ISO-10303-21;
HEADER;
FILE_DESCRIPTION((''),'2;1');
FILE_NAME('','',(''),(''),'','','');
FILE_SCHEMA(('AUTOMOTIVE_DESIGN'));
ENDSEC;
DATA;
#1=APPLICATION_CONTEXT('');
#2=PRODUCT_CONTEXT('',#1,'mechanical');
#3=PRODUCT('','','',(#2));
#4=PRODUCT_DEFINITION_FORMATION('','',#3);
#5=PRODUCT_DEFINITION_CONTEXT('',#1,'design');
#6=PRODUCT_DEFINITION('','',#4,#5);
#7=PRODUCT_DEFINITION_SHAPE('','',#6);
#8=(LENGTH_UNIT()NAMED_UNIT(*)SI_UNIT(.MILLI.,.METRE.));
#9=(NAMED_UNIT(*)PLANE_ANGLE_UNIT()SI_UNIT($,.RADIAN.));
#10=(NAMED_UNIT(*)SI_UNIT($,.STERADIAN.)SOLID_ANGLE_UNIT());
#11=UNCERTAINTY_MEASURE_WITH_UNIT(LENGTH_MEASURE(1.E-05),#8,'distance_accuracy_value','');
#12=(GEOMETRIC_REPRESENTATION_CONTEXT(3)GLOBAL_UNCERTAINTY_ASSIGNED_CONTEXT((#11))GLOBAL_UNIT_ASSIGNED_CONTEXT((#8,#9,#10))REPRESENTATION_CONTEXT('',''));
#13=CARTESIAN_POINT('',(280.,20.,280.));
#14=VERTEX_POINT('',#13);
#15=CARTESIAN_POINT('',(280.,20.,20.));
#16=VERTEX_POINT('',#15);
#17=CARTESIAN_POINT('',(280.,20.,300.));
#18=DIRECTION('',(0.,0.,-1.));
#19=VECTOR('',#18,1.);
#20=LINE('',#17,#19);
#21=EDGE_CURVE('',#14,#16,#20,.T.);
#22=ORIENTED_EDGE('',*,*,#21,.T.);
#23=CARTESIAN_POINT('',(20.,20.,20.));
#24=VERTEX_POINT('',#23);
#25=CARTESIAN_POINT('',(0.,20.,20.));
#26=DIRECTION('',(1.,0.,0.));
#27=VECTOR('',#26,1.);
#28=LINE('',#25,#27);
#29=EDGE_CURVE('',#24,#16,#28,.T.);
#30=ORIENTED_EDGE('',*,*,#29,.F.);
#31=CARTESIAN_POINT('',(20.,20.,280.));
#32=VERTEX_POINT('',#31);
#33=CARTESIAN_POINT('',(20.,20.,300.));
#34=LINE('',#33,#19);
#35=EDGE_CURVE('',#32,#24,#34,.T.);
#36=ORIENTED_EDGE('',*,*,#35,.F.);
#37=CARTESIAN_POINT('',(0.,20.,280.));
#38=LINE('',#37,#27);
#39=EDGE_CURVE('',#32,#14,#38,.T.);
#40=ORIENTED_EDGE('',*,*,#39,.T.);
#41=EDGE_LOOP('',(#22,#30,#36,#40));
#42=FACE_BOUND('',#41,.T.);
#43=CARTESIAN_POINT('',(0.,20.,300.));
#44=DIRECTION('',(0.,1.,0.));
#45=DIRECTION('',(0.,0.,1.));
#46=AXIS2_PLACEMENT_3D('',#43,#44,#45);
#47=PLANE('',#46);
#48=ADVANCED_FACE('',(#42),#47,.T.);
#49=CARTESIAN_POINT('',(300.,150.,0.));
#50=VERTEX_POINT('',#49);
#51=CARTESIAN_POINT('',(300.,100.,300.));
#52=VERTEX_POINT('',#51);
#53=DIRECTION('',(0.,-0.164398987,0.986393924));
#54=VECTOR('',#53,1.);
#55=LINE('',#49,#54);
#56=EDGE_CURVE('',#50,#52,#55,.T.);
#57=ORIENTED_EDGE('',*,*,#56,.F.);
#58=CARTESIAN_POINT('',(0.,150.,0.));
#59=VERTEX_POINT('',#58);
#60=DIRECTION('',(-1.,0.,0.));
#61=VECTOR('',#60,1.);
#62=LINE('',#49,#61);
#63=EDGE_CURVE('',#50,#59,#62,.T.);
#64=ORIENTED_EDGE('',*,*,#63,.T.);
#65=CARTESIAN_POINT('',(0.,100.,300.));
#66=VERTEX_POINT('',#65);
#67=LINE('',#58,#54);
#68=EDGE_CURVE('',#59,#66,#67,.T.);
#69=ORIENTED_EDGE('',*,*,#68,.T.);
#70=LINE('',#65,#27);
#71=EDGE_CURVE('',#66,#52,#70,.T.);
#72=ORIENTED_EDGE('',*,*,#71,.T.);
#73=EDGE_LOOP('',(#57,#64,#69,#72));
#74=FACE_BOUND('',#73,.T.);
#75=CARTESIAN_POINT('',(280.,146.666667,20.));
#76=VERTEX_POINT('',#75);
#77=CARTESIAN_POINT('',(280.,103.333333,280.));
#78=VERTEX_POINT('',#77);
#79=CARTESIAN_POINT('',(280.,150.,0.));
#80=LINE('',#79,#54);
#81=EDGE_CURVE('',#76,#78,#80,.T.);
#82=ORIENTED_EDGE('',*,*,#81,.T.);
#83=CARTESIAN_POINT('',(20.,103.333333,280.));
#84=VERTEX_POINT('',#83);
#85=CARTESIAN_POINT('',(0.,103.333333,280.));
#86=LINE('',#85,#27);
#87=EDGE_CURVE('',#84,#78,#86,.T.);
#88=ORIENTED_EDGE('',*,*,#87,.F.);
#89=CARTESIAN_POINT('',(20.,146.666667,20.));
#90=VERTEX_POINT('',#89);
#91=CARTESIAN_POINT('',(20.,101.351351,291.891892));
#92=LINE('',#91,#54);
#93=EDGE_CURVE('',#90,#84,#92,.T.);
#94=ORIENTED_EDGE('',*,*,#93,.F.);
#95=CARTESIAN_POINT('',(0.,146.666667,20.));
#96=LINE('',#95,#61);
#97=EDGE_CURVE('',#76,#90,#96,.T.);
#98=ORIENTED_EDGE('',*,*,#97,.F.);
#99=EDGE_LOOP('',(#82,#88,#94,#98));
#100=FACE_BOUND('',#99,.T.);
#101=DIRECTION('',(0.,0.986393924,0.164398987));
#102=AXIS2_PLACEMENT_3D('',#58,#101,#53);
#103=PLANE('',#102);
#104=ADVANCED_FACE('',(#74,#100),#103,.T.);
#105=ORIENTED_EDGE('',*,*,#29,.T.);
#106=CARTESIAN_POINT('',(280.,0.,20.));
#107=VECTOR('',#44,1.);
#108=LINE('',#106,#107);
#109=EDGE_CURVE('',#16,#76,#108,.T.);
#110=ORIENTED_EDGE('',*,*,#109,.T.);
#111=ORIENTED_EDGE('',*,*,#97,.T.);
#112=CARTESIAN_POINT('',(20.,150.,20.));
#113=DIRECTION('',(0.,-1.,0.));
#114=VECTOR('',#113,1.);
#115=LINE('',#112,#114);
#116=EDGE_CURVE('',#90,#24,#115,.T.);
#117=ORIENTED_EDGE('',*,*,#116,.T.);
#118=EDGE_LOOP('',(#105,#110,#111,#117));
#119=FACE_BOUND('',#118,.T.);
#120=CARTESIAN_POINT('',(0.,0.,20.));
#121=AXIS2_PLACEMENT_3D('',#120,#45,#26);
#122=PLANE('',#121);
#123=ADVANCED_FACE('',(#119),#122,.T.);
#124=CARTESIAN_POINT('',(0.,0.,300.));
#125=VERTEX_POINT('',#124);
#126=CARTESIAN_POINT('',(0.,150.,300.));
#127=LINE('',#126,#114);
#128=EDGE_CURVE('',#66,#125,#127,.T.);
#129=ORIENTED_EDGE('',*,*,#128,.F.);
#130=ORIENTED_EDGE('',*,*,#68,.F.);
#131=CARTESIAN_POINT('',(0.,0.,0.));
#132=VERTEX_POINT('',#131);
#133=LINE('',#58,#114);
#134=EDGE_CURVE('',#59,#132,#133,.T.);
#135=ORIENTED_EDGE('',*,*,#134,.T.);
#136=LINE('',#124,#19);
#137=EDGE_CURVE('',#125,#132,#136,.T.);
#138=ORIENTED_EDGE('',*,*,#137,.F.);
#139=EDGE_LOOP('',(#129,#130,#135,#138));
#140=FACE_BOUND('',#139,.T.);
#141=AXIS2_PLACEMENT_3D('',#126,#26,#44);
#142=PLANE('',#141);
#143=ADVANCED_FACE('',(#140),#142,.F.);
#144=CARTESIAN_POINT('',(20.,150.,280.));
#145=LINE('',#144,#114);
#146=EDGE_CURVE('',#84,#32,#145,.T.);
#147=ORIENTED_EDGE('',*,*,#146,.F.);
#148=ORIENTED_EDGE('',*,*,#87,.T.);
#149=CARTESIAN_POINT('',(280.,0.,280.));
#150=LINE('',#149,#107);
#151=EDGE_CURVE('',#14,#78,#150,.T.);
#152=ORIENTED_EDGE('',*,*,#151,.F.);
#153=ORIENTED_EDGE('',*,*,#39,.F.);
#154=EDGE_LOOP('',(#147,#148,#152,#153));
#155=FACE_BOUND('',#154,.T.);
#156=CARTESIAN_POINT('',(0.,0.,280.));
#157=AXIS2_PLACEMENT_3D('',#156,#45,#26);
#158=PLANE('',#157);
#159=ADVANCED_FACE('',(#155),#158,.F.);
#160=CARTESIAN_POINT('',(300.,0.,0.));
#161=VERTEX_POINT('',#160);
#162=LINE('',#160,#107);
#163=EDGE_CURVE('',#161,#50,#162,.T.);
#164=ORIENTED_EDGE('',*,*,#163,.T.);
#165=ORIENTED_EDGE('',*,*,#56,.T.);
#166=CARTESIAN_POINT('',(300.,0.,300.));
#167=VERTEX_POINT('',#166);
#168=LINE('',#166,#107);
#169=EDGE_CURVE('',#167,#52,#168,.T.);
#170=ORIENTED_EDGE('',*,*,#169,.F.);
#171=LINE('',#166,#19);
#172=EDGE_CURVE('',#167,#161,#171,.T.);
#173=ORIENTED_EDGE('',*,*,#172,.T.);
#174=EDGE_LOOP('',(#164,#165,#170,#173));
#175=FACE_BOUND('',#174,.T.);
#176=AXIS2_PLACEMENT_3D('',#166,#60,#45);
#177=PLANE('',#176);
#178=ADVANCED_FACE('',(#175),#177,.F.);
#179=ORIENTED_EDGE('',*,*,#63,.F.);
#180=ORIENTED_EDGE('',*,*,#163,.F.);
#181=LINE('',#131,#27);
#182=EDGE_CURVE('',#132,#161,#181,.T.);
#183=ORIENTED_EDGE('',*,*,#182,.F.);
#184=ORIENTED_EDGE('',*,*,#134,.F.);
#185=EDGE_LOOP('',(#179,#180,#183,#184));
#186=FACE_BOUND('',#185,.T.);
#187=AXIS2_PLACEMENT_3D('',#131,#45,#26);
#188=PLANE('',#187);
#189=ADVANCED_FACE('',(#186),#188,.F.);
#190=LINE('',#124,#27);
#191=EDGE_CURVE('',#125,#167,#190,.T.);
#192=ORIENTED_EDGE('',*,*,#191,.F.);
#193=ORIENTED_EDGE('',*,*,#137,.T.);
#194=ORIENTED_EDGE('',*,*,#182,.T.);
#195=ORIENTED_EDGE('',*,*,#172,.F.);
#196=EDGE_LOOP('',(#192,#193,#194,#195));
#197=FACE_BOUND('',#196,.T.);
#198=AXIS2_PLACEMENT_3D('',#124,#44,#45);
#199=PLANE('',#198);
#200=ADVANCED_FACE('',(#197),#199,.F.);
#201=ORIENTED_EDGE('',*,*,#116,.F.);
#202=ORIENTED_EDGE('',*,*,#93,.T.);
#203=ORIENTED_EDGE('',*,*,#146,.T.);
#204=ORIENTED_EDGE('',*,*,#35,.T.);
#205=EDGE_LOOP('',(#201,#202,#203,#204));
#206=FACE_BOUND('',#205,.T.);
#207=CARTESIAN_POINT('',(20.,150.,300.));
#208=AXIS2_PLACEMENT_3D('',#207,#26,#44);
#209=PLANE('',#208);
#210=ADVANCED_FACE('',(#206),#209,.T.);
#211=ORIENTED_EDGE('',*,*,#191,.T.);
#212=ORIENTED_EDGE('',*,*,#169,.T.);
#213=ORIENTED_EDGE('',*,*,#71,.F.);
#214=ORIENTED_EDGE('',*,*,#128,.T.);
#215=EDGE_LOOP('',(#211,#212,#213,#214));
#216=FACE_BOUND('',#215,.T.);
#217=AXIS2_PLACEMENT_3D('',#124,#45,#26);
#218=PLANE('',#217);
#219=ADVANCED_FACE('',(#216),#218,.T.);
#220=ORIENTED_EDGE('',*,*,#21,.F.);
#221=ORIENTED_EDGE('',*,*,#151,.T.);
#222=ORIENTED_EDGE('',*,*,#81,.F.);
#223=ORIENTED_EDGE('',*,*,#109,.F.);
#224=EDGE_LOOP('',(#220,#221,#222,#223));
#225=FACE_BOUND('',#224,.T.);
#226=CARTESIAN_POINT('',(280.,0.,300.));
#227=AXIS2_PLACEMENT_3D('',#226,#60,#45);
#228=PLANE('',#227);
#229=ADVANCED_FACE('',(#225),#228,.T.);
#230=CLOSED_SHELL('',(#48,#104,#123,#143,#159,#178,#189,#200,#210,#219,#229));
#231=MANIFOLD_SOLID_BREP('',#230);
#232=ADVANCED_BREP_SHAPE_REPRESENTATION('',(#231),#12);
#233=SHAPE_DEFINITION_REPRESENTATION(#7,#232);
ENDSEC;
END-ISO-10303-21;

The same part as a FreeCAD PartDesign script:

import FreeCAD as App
import Part
import Sketcher
Q = App.Units.Quantity


def faces_at(feature, points):
    """Names of the faces that lie closest to the given points."""
    faces = feature.Shape.Faces
    near = lambda p: min(range(len(faces)), key=lambda i: faces[i].distToShape(Part.Vertex(*p))[0])
    return sorted({f"Face{near(p) + 1}" for p in points})

doc = App.newDocument("Part")
body = doc.addObject("PartDesign::Body", "Body")

# Sketch on XY plane
sketch1 = body.newObject("Sketcher::SketchObject", "Sketch")
sketch1.AttachmentSupport = (doc.getObject("XY_Plane"), [""])
sketch1.MapMode = "FlatFace"
sketch1.addGeometry([
    Part.LineSegment(App.Vector(0, 150, 0), App.Vector(0, 0, 0)),
    Part.LineSegment(App.Vector(0, 0, 0), App.Vector(300, 0, 0)),
    Part.LineSegment(App.Vector(300, 0, 0), App.Vector(300, 150, 0)),
    Part.LineSegment(App.Vector(300, 150, 0), App.Vector(0, 150, 0)),
], False)
sketch1.addConstraint([
    Sketcher.Constraint("Coincident", 0, 2, 1, 1),
    Sketcher.Constraint("Coincident", 1, 2, 2, 1),
    Sketcher.Constraint("Coincident", 2, 2, 3, 1),
    Sketcher.Constraint("Coincident", 3, 2, 0, 1),
    Sketcher.Constraint("Vertical", 0),
    Sketcher.Constraint("Horizontal", 1),
    Sketcher.Constraint("Vertical", 2),
    Sketcher.Constraint("Horizontal", 3),
    Sketcher.Constraint("Coincident", 0, 2, -1, 1),
    Sketcher.Constraint("DistanceX", 1, 1, 1, 2, Q("300 mm")),
    Sketcher.Constraint("DistanceY", 0, 2, 0, 1, Q("150 mm")),
])
pad1 = body.newObject("PartDesign::Pad", "Pad")
pad1.Profile = sketch1
pad1.Length = 300

# Sketch on YZ plane
sketch2 = body.newObject("Sketcher::SketchObject", "Sketch001")
sketch2.AttachmentSupport = (doc.getObject("YZ_Plane"), [""])
sketch2.MapMode = "FlatFace"
sketch2.AttachmentOffset = App.Placement(App.Vector(0, 0, 300), App.Rotation())
sketch2.addGeometry([
    Part.LineSegment(App.Vector(100, 300, 0), App.Vector(150, 0, 0)),
    Part.LineSegment(App.Vector(150, 0, 0), App.Vector(150, 300, 0)),
    Part.LineSegment(App.Vector(150, 300, 0), App.Vector(100, 300, 0)),
], False)
sketch2.addConstraint([
    Sketcher.Constraint("Coincident", 0, 2, 1, 1),
    Sketcher.Constraint("Coincident", 1, 2, 2, 1),
    Sketcher.Constraint("Coincident", 2, 2, 0, 1),
    Sketcher.Constraint("Vertical", 1),
    Sketcher.Constraint("Horizontal", 2),
    Sketcher.Constraint("PointOnObject", 0, 2, -1),
    Sketcher.Constraint("DistanceX", 2, 2, 2, 1, Q("50 mm")),
    Sketcher.Constraint("DistanceY", 1, 1, 1, 2, Q("300 mm")),
    Sketcher.Constraint("DistanceX", -1, 1, 0, 2, Q("150 mm")),
])
pocket1 = body.newObject("PartDesign::Pocket", "Pocket")
pocket1.Profile = sketch2
pocket1.Length = 300
doc.recompute()

thickness = body.newObject("PartDesign::Thickness", "Thickness")
thickness.Base = (pocket1, faces_at(pocket1, [(150, 125, 150)]))
thickness.Value = 20
thickness.Reversed = True
thickness.Join = "Intersection"

doc.recompute()
